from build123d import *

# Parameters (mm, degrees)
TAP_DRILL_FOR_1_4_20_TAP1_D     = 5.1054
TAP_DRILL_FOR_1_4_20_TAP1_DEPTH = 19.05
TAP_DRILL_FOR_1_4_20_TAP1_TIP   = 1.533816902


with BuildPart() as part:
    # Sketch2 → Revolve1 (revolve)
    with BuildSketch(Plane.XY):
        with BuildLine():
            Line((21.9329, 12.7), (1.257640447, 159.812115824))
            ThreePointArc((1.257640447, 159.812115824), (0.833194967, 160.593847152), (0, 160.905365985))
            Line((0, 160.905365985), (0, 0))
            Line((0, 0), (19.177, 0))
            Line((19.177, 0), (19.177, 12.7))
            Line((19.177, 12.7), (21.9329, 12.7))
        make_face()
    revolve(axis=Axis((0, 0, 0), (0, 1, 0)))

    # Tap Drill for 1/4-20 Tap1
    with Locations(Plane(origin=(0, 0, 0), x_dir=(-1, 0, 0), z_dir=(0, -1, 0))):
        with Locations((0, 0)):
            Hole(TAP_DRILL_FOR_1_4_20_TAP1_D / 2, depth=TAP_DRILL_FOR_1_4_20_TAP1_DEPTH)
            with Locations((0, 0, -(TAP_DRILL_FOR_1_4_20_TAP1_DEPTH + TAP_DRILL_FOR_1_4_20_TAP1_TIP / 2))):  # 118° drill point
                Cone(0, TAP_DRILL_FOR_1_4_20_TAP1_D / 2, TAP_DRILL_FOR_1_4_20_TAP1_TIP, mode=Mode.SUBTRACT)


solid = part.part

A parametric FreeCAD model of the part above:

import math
import FreeCAD as App
import Part
import Sketcher
from FreeCAD import Vector
Q = App.Units.Quantity

doc = App.newDocument("Part")
body = doc.addObject("PartDesign::Body", "Body")

# Sketch on XY plane
sketch1 = body.newObject("Sketcher::SketchObject", "Sketch")
sketch1.AttachmentSupport = (doc.getObject("XY_Plane"), [""])
sketch1.MapMode = "FlatFace"
sketch1.addGeometry([
    Part.LineSegment(Vector(21.9, 12.7, 0), Vector(1.3, 159.8, 0)),  # 0
    Part.ArcOfCircle(Part.Circle(Vector(0, 159.6, 0), Vector(0, 0, 1), 1.3), math.radians(8), math.radians(90)),  # 1
    Part.LineSegment(Vector(0, 160.9, 0), Vector(0, 0, 0)),  # 2
    Part.LineSegment(Vector(0, 0, 0), Vector(19.2, 0, 0)),  # 3
    Part.LineSegment(Vector(19.2, 0, 0), Vector(19.2, 12.7, 0)),  # 4
    Part.LineSegment(Vector(19.2, 12.7, 0), Vector(21.9, 12.7, 0)),  # 5
], False)
sketch1.addConstraint([
    Sketcher.Constraint("Tangent", 0, 2, 1, 1),
    Sketcher.Constraint("Coincident", 1, 2, 2, 1),
    Sketcher.Constraint("Coincident", 2, 2, 3, 1),
    Sketcher.Constraint("Coincident", 3, 2, 4, 1),
    Sketcher.Constraint("Coincident", 4, 2, 5, 1),
    Sketcher.Constraint("Coincident", 5, 2, 0, 1),
    Sketcher.Constraint("Vertical", 2),
    Sketcher.Constraint("Horizontal", 3),
    Sketcher.Constraint("Vertical", 4),
    Sketcher.Constraint("Horizontal", 5),
    Sketcher.Constraint("Coincident", 2, 2, -1, 1),
    Sketcher.Constraint("PointOnObject", 1, 3, -2),
    Sketcher.Constraint("Radius", 1, Q("0.05 in")),
    Sketcher.Constraint("DistanceY", 4, 1, 4, 2, Q("0.5 in")),
    Sketcher.Constraint("Angle", 0, Q("98 deg")),
    Sketcher.Constraint("DistanceX", 3, 1, 3, 2, Q("0.755 in")),
    Sketcher.Constraint("DistanceX", 5, 1, 5, 2, Q("0.1085 in")),
])
revolution = body.newObject("PartDesign::Revolution", "Revolution")
revolution.Profile = sketch1
revolution.ReferenceAxis = (sketch1, ["V_Axis"])
revolution.Angle = 360

# Sketch on XZ plane
sketch2 = body.newObject("Sketcher::SketchObject", "Sketch001")
sketch2.AttachmentSupport = (doc.getObject("XZ_Plane"), [""])
sketch2.MapMode = "FlatFace"
sketch2.addGeometry(Part.Circle(Vector(0, 0, 0), Vector(0, 0, 1), 2.6), False)
sketch2.addConstraint([
    Sketcher.Constraint("Coincident", 0, 3, -1, 1),
    Sketcher.Constraint("Diameter", 0, Q("0.201 in")),
])
doc.recompute()
hole = body.newObject("PartDesign::Hole", "Hole")
hole.Profile = sketch2
hole.ThreadType = "None"
hole.Diameter = Q("0.201 in")
hole.DepthType = "Dimension"
hole.Depth = Q("0.75 in")
hole.DrillPoint = "Angled"
hole.DrillPointAngle = 118

doc.recompute()
